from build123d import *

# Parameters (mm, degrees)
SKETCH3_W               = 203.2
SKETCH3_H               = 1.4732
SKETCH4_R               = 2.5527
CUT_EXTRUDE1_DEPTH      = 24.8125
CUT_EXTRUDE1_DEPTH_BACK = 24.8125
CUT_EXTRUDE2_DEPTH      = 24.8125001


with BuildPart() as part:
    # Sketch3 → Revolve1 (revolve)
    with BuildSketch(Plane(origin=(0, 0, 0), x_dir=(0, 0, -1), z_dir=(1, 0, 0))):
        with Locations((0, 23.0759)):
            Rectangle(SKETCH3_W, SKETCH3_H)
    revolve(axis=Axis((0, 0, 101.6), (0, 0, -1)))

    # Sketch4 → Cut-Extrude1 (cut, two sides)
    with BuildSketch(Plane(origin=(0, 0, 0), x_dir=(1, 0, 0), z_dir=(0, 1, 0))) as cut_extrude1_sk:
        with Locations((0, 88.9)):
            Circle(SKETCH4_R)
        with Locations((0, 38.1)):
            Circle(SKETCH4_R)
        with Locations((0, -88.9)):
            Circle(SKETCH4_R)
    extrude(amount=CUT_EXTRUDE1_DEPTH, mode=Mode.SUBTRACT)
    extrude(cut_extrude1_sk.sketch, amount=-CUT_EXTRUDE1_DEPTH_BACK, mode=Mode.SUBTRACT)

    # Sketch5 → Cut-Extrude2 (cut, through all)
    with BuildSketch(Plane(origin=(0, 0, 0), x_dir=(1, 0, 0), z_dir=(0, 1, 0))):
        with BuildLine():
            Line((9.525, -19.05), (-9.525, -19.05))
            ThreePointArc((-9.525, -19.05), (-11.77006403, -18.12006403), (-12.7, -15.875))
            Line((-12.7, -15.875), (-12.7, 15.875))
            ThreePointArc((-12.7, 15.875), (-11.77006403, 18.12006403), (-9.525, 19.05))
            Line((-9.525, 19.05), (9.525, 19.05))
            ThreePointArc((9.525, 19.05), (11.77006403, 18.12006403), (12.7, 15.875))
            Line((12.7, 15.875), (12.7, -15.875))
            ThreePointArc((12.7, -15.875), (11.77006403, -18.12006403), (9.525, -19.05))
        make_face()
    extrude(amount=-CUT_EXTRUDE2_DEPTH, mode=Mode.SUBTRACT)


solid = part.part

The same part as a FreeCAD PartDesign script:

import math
import FreeCAD as App
import Part
import Sketcher
from FreeCAD import Vector
Q = App.Units.Quantity

doc = App.newDocument("Part")
body = doc.addObject("PartDesign::Body", "Body")

# Sketch on YZ plane
sketch1 = body.newObject("Sketcher::SketchObject", "Sketch")
sketch1.AttachmentSupport = (doc.getObject("YZ_Plane"), [""])
sketch1.MapMode = "FlatFace"
sketch1.addGeometry(Part.LineSegment(Vector(23.8125, 101.6, 0), Vector(22.3393, 101.6, 0)), False)
sketch1.addGeometry(Part.LineSegment(Vector(22.3393, 101.6, 0), Vector(22.3393, -101.6, 0)), False)
sketch1.addGeometry(Part.LineSegment(Vector(22.3393, -101.6, 0), Vector(23.8125, -101.6, 0)), False)
sketch1.addGeometry(Part.LineSegment(Vector(23.8125, -101.6, 0), Vector(23.8125, 101.6, 0)), False)
sketch1.addConstraint(Sketcher.Constraint("Coincident", 0, 2, 1, 1))
sketch1.addConstraint(Sketcher.Constraint("Coincident", 1, 2, 2, 1))
sketch1.addConstraint(Sketcher.Constraint("Coincident", 2, 2, 3, 1))
sketch1.addConstraint(Sketcher.Constraint("Coincident", 3, 2, 0, 1))
sketch1.addConstraint(Sketcher.Constraint("Horizontal", 0))
sketch1.addConstraint(Sketcher.Constraint("Vertical", 1))
sketch1.addConstraint(Sketcher.Constraint("Horizontal", 2))
sketch1.addConstraint(Sketcher.Constraint("Vertical", 3))
sketch1.addConstraint(Sketcher.Constraint("DistanceY", 1, 2, 1, 1, Q("8 in")))
sketch1.addConstraint(Sketcher.Constraint("DistanceY", -1, 1, 0, 2, Q("4 in")))
sketch1.addConstraint(Sketcher.Constraint("DistanceX", 0, 2, 0, 1, Q("0.058 in")))
sketch1.addConstraint(Sketcher.Constraint("DistanceX", -1, 1, 2, 2, Q("0.9375 in")))
revolution = body.newObject("PartDesign::Revolution", "Revolution")
revolution.Profile = sketch1
revolution.ReferenceAxis = (sketch1, ["V_Axis"])
revolution.Angle = 360

# Sketch on XZ plane
sketch2 = body.newObject("Sketcher::SketchObject", "Sketch001")
sketch2.AttachmentSupport = (doc.getObject("XZ_Plane"), [""])
sketch2.MapMode = "FlatFace"
sketch2.addGeometry(Part.Circle(Vector(0, -88.9, 0), Vector(0, 0, 1), 2.5527), False)
sketch2.addGeometry(Part.Circle(Vector(0, -38.1, 0), Vector(0, 0, 1), 2.5527), False)
sketch2.addGeometry(Part.Circle(Vector(0, 88.9, 0), Vector(0, 0, 1), 2.5527), False)
sketch2.addConstraint(Sketcher.Constraint("Equal", 0, 1))
sketch2.addConstraint(Sketcher.Constraint("Equal", 1, 2))
sketch2.addConstraint(Sketcher.Constraint("Symmetric", 0, 3, 2, 3, -1, 1))
sketch2.addConstraint(Sketcher.Constraint("PointOnObject", 0, 3, -2))
sketch2.addConstraint(Sketcher.Constraint("PointOnObject", 1, 3, -2))
sketch2.addConstraint(Sketcher.Constraint("Diameter", 0, Q("0.201 in")))
sketch2.addConstraint(Sketcher.Constraint("DistanceY", 0, 3, 1, 3, Q("2 in")))
sketch2.addConstraint(Sketcher.Constraint("DistanceY", 1, 3, 2, 3, Q("5 in")))
pocket1 = body.newObject("PartDesign::Pocket", "Pocket")
pocket1.Profile = sketch2
pocket1.Type = "ThroughAll"
pocket1.Midplane = True

# Sketch on XZ plane
sketch3 = body.newObject("Sketcher::SketchObject", "Sketch002")
sketch3.AttachmentSupport = (doc.getObject("XZ_Plane"), [""])
sketch3.MapMode = "FlatFace"
sketch3.addGeometry(Part.LineSegment(Vector(-9.525, 19.05, 0), Vector(9.525, 19.05, 0)), False)
sketch3.addGeometry(Part.ArcOfCircle(Part.Circle(Vector(9.525, 15.875, 0), Vector(0, 0, 1), 3.175), math.radians(0), math.radians(90)), False)
sketch3.addGeometry(Part.LineSegment(Vector(12.7, 15.875, 0), Vector(12.7, -15.875, 0)), False)
sketch3.addGeometry(Part.ArcOfCircle(Part.Circle(Vector(9.525, -15.875, 0), Vector(0, 0, 1), 3.175), math.radians(-90), math.radians(0)), False)
sketch3.addGeometry(Part.LineSegment(Vector(9.525, -19.05, 0), Vector(-9.525, -19.05, 0)), False)
sketch3.addGeometry(Part.ArcOfCircle(Part.Circle(Vector(-9.525, -15.875, 0), Vector(0, 0, 1), 3.175), math.radians(-180), math.radians(-90)), False)
sketch3.addGeometry(Part.LineSegment(Vector(-12.7, -15.875, 0), Vector(-12.7, 15.875, 0)), False)
sketch3.addGeometry(Part.ArcOfCircle(Part.Circle(Vector(-9.525, 15.875, 0), Vector(0, 0, 1), 3.175), math.radians(90), math.radians(180)), False)
sketch3.addConstraint(Sketcher.Constraint("Tangent", 0, 2, 1, 2))
sketch3.addConstraint(Sketcher.Constraint("Tangent", 1, 1, 2, 1))
sketch3.addConstraint(Sketcher.Constraint("Tangent", 2, 2, 3, 2))
sketch3.addConstraint(Sketcher.Constraint("Tangent", 3, 1, 4, 1))
sketch3.addConstraint(Sketcher.Constraint("Tangent", 4, 2, 5, 2))
sketch3.addConstraint(Sketcher.Constraint("Tangent", 5, 1, 6, 1))
sketch3.addConstraint(Sketcher.Constraint("Tangent", 6, 2, 7, 2))
sketch3.addConstraint(Sketcher.Constraint("Tangent", 7, 1, 0, 1))
sketch3.addConstraint(Sketcher.Constraint("Horizontal", 0))
sketch3.addConstraint(Sketcher.Constraint("Vertical", 2))
sketch3.addConstraint(Sketcher.Constraint("Horizontal", 4))
sketch3.addConstraint(Sketcher.Constraint("Vertical", 6))
sketch3.addConstraint(Sketcher.Constraint("Equal", 1, 3))
sketch3.addConstraint(Sketcher.Constraint("Equal", 3, 5))
sketch3.addConstraint(Sketcher.Constraint("Equal", 5, 7))
sketch3.addConstraint(Sketcher.Constraint("Symmetric", 1, 3, 5, 3, -1, 1))
sketch3.addConstraint(Sketcher.Constraint("Radius", 1, Q("0.125 in")))
sketch3.addConstraint(Sketcher.Constraint("DistanceX", 5, 1, 2, 2, Q("1 in")))
sketch3.addConstraint(Sketcher.Constraint("DistanceY", 2, 2, 2, 1, Q("1.25 in")))
pocket2 = body.newObject("PartDesign::Pocket", "Pocket001")
pocket2.Profile = sketch3
pocket2.Type = "ThroughAll"
pocket2.Reversed = True

doc.recompute()
